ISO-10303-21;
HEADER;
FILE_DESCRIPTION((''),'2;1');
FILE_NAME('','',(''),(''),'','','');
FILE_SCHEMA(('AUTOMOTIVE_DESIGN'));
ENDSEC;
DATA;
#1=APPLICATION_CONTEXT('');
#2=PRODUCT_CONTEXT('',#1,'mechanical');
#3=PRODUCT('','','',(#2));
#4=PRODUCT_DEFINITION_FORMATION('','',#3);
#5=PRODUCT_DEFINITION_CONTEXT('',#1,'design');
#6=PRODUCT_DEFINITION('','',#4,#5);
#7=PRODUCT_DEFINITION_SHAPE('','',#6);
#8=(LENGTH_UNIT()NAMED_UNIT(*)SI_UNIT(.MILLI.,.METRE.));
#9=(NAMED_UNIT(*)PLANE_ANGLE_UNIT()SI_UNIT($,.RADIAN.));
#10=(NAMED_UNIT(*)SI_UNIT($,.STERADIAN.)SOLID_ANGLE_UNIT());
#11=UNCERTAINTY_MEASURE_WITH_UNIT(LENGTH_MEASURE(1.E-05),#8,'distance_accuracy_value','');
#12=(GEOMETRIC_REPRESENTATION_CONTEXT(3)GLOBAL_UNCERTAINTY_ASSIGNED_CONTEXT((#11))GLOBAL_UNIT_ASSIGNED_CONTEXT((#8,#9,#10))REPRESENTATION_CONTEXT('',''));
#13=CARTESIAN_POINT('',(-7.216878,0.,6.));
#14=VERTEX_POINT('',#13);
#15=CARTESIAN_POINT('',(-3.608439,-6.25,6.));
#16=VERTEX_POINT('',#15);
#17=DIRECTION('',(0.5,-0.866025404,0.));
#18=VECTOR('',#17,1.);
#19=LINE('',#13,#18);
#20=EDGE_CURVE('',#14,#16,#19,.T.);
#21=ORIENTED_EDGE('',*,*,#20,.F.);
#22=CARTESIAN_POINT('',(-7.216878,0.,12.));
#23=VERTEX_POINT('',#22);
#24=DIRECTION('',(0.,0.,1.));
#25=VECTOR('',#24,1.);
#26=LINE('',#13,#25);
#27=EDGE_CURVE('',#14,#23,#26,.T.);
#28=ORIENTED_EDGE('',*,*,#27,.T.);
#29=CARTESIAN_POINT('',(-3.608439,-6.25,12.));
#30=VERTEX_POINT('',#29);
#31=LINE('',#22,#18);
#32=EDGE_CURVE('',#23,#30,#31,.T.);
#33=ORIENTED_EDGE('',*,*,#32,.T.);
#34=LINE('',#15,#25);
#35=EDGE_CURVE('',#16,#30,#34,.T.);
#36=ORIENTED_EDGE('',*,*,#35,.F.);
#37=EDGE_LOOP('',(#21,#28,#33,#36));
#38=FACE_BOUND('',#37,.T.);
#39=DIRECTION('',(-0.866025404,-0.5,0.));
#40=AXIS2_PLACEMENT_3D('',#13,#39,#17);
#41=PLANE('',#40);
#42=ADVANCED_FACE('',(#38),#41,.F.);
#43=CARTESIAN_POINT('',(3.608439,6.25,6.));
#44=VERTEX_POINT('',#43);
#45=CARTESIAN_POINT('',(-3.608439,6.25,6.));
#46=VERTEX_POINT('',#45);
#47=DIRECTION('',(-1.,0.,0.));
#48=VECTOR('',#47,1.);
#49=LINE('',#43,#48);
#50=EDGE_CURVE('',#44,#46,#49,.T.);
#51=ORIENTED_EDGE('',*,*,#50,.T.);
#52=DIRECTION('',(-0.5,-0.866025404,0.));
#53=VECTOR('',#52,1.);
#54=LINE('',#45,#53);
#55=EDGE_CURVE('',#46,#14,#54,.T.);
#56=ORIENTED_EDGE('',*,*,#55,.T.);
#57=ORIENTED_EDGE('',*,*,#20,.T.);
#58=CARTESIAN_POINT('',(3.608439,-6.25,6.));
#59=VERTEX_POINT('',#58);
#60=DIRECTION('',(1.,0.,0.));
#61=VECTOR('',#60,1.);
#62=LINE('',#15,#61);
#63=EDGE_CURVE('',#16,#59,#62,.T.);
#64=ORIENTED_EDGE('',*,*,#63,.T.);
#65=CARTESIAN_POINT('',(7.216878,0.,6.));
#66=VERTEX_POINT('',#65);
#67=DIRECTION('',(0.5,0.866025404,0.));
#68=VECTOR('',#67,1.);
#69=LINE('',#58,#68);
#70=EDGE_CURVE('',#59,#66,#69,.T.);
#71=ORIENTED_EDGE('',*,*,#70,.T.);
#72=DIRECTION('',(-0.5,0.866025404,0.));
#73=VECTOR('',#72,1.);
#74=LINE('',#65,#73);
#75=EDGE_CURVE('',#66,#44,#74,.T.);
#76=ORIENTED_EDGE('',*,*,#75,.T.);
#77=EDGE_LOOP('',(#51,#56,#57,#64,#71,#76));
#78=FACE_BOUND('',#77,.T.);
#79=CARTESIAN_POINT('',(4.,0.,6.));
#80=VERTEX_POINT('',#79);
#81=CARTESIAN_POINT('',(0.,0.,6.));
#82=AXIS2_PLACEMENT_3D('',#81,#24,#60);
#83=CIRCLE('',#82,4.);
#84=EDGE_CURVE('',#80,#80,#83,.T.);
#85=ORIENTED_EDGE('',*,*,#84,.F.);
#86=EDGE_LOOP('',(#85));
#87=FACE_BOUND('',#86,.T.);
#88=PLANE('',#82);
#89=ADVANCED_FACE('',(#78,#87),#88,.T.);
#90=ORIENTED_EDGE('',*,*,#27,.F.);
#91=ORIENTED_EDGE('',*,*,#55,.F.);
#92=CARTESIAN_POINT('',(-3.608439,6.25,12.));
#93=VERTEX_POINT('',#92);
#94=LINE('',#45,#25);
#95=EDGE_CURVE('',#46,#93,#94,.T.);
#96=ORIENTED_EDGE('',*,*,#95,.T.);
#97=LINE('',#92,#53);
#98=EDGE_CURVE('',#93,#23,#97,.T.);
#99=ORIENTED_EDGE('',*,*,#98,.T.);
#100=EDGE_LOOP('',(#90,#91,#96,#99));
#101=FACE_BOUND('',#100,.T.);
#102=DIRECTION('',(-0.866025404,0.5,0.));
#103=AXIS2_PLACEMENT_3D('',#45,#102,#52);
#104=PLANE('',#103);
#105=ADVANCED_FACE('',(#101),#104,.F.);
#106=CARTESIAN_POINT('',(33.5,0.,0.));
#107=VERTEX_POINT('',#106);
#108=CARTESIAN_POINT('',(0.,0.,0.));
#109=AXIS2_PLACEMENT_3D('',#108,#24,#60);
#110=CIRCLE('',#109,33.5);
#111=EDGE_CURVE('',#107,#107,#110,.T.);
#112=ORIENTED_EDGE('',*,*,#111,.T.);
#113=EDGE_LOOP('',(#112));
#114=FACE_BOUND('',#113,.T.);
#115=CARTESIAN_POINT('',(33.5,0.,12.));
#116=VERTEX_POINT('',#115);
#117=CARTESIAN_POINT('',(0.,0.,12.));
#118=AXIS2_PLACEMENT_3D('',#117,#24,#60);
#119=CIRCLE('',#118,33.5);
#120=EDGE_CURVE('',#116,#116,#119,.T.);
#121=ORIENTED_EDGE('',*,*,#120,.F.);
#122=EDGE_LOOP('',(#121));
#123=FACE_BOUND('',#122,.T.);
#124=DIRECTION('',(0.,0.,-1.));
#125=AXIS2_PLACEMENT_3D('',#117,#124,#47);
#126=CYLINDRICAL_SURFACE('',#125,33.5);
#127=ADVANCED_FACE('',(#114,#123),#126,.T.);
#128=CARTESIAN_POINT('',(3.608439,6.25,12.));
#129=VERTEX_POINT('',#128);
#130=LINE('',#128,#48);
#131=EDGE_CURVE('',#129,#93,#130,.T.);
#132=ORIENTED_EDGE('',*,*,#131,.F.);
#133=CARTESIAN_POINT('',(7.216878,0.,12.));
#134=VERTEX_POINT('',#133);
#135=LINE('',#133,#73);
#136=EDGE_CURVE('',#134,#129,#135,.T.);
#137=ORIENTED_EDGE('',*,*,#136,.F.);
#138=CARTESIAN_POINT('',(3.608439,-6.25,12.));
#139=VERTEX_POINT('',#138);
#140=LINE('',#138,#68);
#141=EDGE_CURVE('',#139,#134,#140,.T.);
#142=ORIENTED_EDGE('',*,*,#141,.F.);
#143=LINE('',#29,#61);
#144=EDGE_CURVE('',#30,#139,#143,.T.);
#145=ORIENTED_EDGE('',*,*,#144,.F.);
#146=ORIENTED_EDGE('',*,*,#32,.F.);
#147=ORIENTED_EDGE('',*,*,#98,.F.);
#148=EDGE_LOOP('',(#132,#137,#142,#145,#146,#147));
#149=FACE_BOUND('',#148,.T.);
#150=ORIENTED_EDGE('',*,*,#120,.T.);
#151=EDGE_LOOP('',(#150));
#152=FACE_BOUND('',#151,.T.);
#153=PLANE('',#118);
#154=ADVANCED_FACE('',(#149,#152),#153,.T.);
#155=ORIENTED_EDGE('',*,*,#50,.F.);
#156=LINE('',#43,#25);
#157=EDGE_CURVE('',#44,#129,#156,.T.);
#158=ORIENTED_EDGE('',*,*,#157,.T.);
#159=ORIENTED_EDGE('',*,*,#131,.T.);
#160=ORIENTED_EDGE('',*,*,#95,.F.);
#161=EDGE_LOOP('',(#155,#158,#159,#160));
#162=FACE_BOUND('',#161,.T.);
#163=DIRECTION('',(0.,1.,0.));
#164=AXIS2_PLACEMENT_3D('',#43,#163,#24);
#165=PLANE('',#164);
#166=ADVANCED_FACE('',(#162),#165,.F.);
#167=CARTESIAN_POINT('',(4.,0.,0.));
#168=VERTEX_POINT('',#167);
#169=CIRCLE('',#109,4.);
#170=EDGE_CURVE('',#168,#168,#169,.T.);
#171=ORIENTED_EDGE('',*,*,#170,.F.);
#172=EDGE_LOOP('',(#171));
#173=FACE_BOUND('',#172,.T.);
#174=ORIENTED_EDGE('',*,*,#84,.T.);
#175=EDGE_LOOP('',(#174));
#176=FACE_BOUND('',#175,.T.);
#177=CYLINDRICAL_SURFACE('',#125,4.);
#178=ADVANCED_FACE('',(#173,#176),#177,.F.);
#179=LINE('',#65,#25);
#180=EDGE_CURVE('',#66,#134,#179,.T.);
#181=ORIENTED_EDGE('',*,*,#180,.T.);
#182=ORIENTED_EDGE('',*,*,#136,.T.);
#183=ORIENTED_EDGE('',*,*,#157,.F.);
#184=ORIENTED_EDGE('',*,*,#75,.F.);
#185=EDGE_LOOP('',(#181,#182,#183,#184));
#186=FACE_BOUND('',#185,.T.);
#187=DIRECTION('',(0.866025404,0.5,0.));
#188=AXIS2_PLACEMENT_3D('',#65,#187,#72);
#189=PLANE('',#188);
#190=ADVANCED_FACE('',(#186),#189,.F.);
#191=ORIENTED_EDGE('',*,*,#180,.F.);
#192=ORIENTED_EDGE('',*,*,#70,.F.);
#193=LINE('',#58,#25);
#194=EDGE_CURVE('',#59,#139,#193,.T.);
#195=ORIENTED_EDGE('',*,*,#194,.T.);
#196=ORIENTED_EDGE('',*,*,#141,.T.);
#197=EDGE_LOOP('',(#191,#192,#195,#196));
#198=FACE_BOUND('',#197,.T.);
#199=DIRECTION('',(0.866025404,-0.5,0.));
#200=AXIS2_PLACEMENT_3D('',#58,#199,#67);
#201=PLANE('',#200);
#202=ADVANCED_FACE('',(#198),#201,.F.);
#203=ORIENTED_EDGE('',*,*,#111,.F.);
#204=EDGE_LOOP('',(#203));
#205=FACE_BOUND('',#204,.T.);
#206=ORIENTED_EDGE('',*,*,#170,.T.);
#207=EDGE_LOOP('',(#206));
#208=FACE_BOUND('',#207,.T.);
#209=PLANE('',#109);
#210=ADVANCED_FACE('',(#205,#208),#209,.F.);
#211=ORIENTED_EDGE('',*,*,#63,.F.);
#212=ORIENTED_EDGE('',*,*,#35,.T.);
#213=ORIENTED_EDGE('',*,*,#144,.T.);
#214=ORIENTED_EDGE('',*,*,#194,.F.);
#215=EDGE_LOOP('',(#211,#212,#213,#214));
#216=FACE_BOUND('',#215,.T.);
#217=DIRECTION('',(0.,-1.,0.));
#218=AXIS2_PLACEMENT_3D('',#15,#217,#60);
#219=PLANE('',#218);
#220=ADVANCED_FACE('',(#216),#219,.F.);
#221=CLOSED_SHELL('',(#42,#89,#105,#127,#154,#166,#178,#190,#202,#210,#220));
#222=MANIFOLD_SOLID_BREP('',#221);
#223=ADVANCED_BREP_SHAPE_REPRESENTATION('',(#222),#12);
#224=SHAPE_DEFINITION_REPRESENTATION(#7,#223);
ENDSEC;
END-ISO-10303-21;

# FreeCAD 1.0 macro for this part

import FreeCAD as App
import Part
import Sketcher
Q = App.Units.Quantity


def add_polygon(sketch, points):
    """Adds a closed chain of lines whose ends are joined by coincident constraints."""
    first, n = sketch.GeometryCount, len(points)
    for a, b in zip(points, points[1:] + points[:1]):
        sketch.addGeometry(Part.LineSegment(App.Vector(*a, 0), App.Vector(*b, 0)), False)
    for i in range(n):
        sketch.addConstraint(Sketcher.Constraint("Coincident", first + i, 2, first + (i + 1) % n, 1))

doc = App.newDocument("Part")
body = doc.addObject("PartDesign::Body", "Body")

# Sketch on XY plane
sketch1 = body.newObject("Sketcher::SketchObject", "Sketch")
sketch1.AttachmentSupport = (doc.getObject("XY_Plane"), [""])
sketch1.MapMode = "FlatFace"
sketch1.addGeometry([
    Part.Circle(App.Vector(0, 0, 0), App.Vector(0, 0, 1), 33.5),
    Part.Circle(App.Vector(0, 0, 0), App.Vector(0, 0, 1), 4),
], False)
sketch1.addConstraint([
    Sketcher.Constraint("Coincident", 0, 3, -1, 1),
    Sketcher.Constraint("Coincident", 1, 3, -1, 1),
    Sketcher.Constraint("Diameter", 0, Q("67 mm")),
    Sketcher.Constraint("Diameter", 1, Q("8 mm")),
])
pad1 = body.newObject("PartDesign::Pad", "Pad")
pad1.Profile = sketch1
pad1.Length = 12

# Sketch on XY plane
sketch2 = body.newObject("Sketcher::SketchObject", "Sketch001")
sketch2.AttachmentSupport = (doc.getObject("XY_Plane"), [""])
sketch2.MapMode = "FlatFace"
sketch2.AttachmentOffset = App.Placement(App.Vector(0, 0, 12), App.Rotation())
add_polygon(sketch2, [(7, 0), (4, 6), (-4, 6), (-7, 0), (-4, -6), (4, -6)])  # lines 0-5
sketch2.addConstraint([
    Sketcher.Constraint("Horizontal", 1),
    Sketcher.Constraint("Horizontal", 4),
    Sketcher.Constraint("Symmetric", 0, 2, 3, 2, -1, 1),
    Sketcher.Constraint("Symmetric", 2, 2, 5, 2, -1, 1),
    Sketcher.Constraint("PointOnObject", 2, 2, -1),
    Sketcher.Constraint("Parallel", 2, 5),
    Sketcher.Constraint("Vertical", 1, 2, 3, 2),
    Sketcher.Constraint("Angle", 0, Q("120 deg")),
    Sketcher.Constraint("DistanceY", 3, 2, 1, 2, Q("12.5 mm")),
    Sketcher.Constraint("DistanceX", 1, 2, 1, 1, Q("7.216878 mm")),
])
pocket1 = body.newObject("PartDesign::Pocket", "Pocket")
pocket1.Profile = sketch2
pocket1.Length = 6

doc.recompute()
